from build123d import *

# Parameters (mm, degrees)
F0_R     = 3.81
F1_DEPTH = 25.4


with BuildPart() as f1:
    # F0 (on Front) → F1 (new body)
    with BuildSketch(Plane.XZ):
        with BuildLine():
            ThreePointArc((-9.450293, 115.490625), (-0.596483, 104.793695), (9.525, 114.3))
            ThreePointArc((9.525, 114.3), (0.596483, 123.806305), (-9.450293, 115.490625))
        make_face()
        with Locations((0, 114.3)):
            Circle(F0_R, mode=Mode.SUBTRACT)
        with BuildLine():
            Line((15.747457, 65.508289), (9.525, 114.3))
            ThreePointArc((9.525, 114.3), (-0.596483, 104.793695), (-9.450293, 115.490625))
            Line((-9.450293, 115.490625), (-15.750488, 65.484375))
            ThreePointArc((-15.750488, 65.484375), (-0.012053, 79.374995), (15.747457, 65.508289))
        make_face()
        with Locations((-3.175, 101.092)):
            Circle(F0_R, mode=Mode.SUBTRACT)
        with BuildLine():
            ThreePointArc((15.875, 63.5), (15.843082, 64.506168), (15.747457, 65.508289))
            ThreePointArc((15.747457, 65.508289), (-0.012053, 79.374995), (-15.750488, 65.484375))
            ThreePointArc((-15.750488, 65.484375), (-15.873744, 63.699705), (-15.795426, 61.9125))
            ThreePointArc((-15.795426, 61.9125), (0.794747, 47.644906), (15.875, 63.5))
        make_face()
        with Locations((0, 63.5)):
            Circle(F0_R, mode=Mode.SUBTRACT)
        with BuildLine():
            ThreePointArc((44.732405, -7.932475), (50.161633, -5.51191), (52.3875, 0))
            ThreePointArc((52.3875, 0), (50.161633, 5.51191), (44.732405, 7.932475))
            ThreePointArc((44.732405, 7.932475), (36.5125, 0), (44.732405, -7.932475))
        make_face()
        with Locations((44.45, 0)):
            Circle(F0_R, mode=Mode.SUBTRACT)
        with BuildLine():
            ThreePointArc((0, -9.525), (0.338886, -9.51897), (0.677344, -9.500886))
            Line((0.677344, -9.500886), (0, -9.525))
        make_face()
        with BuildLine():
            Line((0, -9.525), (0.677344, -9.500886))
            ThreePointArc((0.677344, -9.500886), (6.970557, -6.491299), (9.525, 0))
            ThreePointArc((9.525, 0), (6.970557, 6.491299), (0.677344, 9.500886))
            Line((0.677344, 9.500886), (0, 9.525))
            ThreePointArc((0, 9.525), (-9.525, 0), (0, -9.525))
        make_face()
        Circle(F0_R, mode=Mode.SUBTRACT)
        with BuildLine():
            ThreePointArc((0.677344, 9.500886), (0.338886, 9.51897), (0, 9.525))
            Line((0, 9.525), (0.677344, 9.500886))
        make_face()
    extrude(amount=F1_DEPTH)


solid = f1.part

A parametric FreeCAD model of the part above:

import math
import FreeCAD as App
import Part
import Sketcher
Q = App.Units.Quantity

doc = App.newDocument("Part")
params = doc.addObject("Spreadsheet::Sheet", "Params")
for row, (alias, value) in enumerate([
    ("sketch1_diameter", "0.3 in"),
    ("sketch1_radius", "0.375 in"),
    ("sketch1_radius2", "0.625 in"),
    ("sketch1_radius3", "0.3125 in"),
    ("pad1_length", "1 in"),
], start=1):
    params.set(f"A{row}", alias)
    params.set(f"B{row}", "=" + value)
    params.setAlias(f"B{row}", alias)

body = doc.addObject("PartDesign::Body", "Body")
body.AllowCompound = True

# Sketch on XZ plane
sketch1 = body.newObject("Sketcher::SketchObject", "Sketch")
sketch1.AttachmentSupport = (doc.getObject("XZ_Plane"), [""])
sketch1.MapMode = "FlatFace"
sketch1.addGeometry([
    Part.ArcOfCircle(Part.Circle(App.Vector(0, 114.3, 0), App.Vector(0, 0, 1), 9.525), math.radians(0), math.radians(172.819245)),  # 0
    Part.LineSegment(App.Vector(-9.450293, 115.490625, 0), App.Vector(-15.750488, 65.484375, 0)),  # 1
    Part.ArcOfCircle(Part.Circle(App.Vector(-0.000015, 63.499997, 0), App.Vector(0, 0, 1), 15.874985), math.radians(172.819227), math.radians(185.739165)),  # 2
    Part.ArcOfCircle(Part.Circle(App.Vector(0, 63.5, 0), App.Vector(0, 0, 1), 15.875), math.radians(-174.260829), math.radians(0)),  # 3
    Part.ArcOfCircle(Part.Circle(App.Vector(-0.000071, 63.499996, 0), App.Vector(0, 0, 1), 15.875071), math.radians(0.000015), math.radians(7.267739)),  # 4
    Part.LineSegment(App.Vector(15.747457, 65.508289, 0), App.Vector(9.525, 114.3, 0)),  # 5
    Part.Circle(App.Vector(0, 63.5, 0), App.Vector(0, 0, 1), 3.81),  # 6
    Part.Circle(App.Vector(-3.175, 101.092, 0), App.Vector(0, 0, 1), 3.81),  # 7
    Part.Circle(App.Vector(0, 114.3, 0), App.Vector(0, 0, 1), 3.81),  # 8
    Part.ArcOfCircle(Part.Circle(App.Vector(44.449999, 0.000001, 0), App.Vector(0, 0, 1), 7.937501), math.radians(-87.961059), math.radians(-0.000005)),  # 9
    Part.ArcOfCircle(Part.Circle(App.Vector(44.449999, -0.000001, 0), App.Vector(0, 0, 1), 7.937501), math.radians(0.000005), math.radians(87.961059)),  # 10
    Part.ArcOfCircle(Part.Circle(App.Vector(44.45, 0, 0), App.Vector(0, 0, 1), 7.9375), math.radians(87.96107), math.radians(272.03893)),  # 11
    Part.Circle(App.Vector(44.45, 0, 0), App.Vector(0, 0, 1), 3.81),  # 12
    Part.ArcOfCircle(Part.Circle(App.Vector(0.000022, -0.000517, 0), App.Vector(0, 0, 1), 9.524483), math.radians(-90.000132), math.radians(-85.922038)),  # 13
    Part.ArcOfCircle(Part.Circle(App.Vector(0, 0, 0), App.Vector(0, 0, 1), 9.525), math.radians(-85.922127), math.radians(0.000001)),  # 14
    Part.ArcOfCircle(Part.Circle(App.Vector(0, 0, 0), App.Vector(0, 0, 1), 9.525), math.radians(-0.000001), math.radians(85.922127)),  # 15
    Part.ArcOfCircle(Part.Circle(App.Vector(0.000022, 0.000517, 0), App.Vector(0, 0, 1), 9.524483), math.radians(85.922038), math.radians(90.000132)),  # 16
    Part.ArcOfCircle(Part.Circle(App.Vector(0, 0, 0), App.Vector(0, 0, 1), 9.525), math.radians(90), math.radians(270)),  # 17
    Part.Circle(App.Vector(0, 0, 0), App.Vector(0, 0, 1), 3.81),  # 18
], False)
sketch1.addConstraint([
    Sketcher.Constraint("Tangent", 0, 2, 1, 1),
    Sketcher.Constraint("Tangent", 1, 2, 2, 1),
    Sketcher.Constraint("Tangent", 2, 2, 3, 1),
    Sketcher.Constraint("Tangent", 3, 2, 4, 1),
    Sketcher.Constraint("Tangent", 4, 2, 5, 1),
    Sketcher.Constraint("Coincident", 5, 2, 0, 1),
    Sketcher.Constraint("Tangent", 9, 2, 10, 1),
    Sketcher.Constraint("Tangent", 10, 2, 11, 1),
    Sketcher.Constraint("Tangent", 11, 2, 9, 1),
    Sketcher.Constraint("Tangent", 13, 2, 14, 1),
    Sketcher.Constraint("Tangent", 14, 2, 15, 1),
    Sketcher.Constraint("Tangent", 15, 2, 16, 1),
    Sketcher.Constraint("Coincident", 16, 2, 17, 1),
    Sketcher.Constraint("Coincident", 17, 2, 13, 1),
    Sketcher.Constraint("Coincident", 14, 3, -1, 1),
    Sketcher.Constraint("Coincident", 17, 3, -1, 1),
    Sketcher.Constraint("Coincident", 18, 3, -1, 1),
    Sketcher.Constraint("Coincident", 6, 3, 3, 3),
    Sketcher.Constraint("Coincident", 8, 3, 0, 3),
    Sketcher.Constraint("Coincident", 12, 3, 9, 3),
    Sketcher.Constraint("Equal", 6, 7),
    Sketcher.Constraint("Equal", 7, 8),
    Sketcher.Constraint("Equal", 8, 12),
    Sketcher.Constraint("Equal", 0, 14),
    Sketcher.Constraint("Equal", 13, 16),
    Sketcher.Constraint("Equal", 12, 18),
    Sketcher.Constraint("Symmetric", 10, 2, 11, 2, -1),
    Sketcher.Constraint("PointOnObject", 0, 3, -2),
    Sketcher.Constraint("PointOnObject", 3, 3, -2),
    Sketcher.Constraint("PointOnObject", 9, 2, -1),
    Sketcher.Constraint("PointOnObject", 14, 2, -1),
    Sketcher.Constraint("PointOnObject", 16, 2, -2),
    Sketcher.Constraint("PointOnObject", 17, 2, -2),
    Sketcher.Constraint("Horizontal", 2, 3, 4, 3),
    Sketcher.Constraint("Horizontal", 6, 3, 3, 2),
    Sketcher.Constraint("Horizontal", 8, 3, 5, 2),
    Sketcher.Constraint("Vertical", 13, 2, 15, 2),
    Sketcher.Constraint("Diameter", 6, Q("0.3 in")),
    Sketcher.Constraint("Radius", 0, Q("0.375 in")),
    Sketcher.Constraint("Radius", 3, Q("0.625 in")),
    Sketcher.Constraint("Radius", 9, Q("0.3125 in")),
    Sketcher.Constraint("DistanceY", 2, 3, 0, 3, Q("2.0000001 in")),
    Sketcher.Constraint("DistanceY", -1, 1, 0, 3, Q("4.5 in")),
    Sketcher.Constraint("DistanceX", 7, 3, 5, 2, Q("0.5 in")),
    Sketcher.Constraint("DistanceY", -1, 1, 7, 3, Q("3.98 in")),
    Sketcher.Constraint("DistanceX", -1, 1, 9, 3, Q("1.75 in")),
    Sketcher.Constraint("DistanceY", -1, 1, 2, 2, Q("2.4375 in")),
    Sketcher.Constraint("Radius", 4, 15.875071),
    Sketcher.Constraint("Radius", 13, 9.524483),
    Sketcher.Constraint("DistanceY", 13, 2, 13, 3, 9.500369),
    Sketcher.Constraint("DistanceX", -1, 1, 10, 2, 44.732405),
])
sketch1.setExpression("Constraints[37]", "Params.sketch1_diameter")
sketch1.setExpression("Constraints[38]", "Params.sketch1_radius")
sketch1.setExpression("Constraints[39]", "Params.sketch1_radius2")
sketch1.setExpression("Constraints[40]", "Params.sketch1_radius3")
pad1 = body.newObject("PartDesign::Pad", "Pad")
pad1.Profile = sketch1
pad1.setExpression("Length", "Params.pad1_length")

doc.recompute()
